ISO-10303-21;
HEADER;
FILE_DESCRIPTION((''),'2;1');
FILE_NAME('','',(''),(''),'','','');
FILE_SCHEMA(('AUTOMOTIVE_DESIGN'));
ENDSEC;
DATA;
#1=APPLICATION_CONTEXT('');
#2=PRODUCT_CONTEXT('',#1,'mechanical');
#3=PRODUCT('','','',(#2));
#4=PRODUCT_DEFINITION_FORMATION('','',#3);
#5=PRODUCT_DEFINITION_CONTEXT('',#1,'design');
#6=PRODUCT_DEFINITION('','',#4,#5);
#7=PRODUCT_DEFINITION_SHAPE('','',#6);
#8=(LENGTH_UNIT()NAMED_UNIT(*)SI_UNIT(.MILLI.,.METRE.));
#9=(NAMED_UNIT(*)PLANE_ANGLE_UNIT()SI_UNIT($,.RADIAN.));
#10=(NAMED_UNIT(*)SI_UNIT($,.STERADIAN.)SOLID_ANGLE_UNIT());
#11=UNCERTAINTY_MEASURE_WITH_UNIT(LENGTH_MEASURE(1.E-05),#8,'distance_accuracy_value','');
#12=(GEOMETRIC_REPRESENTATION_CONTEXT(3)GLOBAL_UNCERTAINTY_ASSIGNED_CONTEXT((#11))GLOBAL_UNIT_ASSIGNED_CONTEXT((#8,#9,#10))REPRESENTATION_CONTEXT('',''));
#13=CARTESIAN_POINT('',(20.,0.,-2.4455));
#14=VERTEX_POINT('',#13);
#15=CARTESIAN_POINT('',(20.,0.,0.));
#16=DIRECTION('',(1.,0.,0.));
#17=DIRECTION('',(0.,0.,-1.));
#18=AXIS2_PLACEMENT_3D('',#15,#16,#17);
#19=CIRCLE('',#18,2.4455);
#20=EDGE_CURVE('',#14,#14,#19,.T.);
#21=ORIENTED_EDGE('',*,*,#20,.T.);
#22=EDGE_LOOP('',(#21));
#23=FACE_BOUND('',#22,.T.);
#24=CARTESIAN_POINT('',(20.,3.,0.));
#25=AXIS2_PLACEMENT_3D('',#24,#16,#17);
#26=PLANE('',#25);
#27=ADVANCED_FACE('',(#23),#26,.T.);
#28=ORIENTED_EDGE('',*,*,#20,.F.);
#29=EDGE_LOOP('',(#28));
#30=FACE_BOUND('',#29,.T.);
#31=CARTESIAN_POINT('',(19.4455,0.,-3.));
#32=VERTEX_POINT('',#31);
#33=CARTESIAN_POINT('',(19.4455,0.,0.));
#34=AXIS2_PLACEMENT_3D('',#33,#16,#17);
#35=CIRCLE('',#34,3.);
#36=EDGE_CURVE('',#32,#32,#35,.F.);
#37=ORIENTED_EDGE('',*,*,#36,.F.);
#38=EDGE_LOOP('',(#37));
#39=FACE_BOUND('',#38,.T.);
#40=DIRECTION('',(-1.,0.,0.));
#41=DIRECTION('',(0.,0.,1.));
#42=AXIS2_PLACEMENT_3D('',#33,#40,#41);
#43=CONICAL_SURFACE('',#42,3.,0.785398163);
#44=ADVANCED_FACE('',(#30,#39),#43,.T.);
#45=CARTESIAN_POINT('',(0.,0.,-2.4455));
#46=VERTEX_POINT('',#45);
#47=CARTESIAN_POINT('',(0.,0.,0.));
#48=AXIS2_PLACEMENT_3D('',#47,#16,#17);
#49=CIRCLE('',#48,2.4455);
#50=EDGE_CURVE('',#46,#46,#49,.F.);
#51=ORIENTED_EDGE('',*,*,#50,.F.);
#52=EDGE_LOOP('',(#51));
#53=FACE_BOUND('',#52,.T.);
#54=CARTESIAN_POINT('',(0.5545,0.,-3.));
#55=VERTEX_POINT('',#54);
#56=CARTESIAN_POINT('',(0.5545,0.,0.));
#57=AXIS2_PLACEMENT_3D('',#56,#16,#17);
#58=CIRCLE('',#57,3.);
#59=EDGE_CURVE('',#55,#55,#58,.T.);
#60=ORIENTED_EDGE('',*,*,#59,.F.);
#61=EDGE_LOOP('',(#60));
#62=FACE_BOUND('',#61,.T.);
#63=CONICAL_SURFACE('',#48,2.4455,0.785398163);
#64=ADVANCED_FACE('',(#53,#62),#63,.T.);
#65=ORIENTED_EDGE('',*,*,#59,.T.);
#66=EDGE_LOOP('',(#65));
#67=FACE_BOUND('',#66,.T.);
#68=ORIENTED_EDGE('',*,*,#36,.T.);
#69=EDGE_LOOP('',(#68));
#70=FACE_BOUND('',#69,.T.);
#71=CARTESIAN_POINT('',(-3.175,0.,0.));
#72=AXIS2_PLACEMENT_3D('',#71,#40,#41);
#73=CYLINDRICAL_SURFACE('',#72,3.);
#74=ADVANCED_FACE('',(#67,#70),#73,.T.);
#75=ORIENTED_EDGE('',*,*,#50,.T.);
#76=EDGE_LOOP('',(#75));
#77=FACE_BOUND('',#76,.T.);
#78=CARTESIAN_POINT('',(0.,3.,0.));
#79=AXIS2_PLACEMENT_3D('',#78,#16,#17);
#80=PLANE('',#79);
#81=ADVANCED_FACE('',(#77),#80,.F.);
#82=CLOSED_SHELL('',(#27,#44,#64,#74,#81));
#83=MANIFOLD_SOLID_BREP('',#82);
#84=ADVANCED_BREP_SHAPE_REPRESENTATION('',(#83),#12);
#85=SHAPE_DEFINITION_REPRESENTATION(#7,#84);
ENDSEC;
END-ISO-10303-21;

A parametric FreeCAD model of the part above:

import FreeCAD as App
import Part
import Sketcher


def edges_at(feature, points):
    """Names of the edges that pass closest to the given points."""
    edges = feature.Shape.Edges
    near = lambda p: min(range(len(edges)), key=lambda i: edges[i].distToShape(Part.Vertex(*p))[0])
    return sorted({f"Edge{near(p) + 1}" for p in points})

doc = App.newDocument("Part")
body = doc.addObject("PartDesign::Body", "Body")

# Sketch on XY plane
sketch1 = body.newObject("Sketcher::SketchObject", "Sketch")
sketch1.AttachmentSupport = (doc.getObject("XY_Plane"), [""])
sketch1.MapMode = "FlatFace"
sketch1.addGeometry(Part.LineSegment(App.Vector(0, 3, 0), App.Vector(0, 0, 0)), False)
sketch1.addGeometry(Part.LineSegment(App.Vector(0, 0, 0), App.Vector(20, 0, 0)), False)
sketch1.addGeometry(Part.LineSegment(App.Vector(20, 0, 0), App.Vector(20, 3, 0)), False)
sketch1.addGeometry(Part.LineSegment(App.Vector(20, 3, 0), App.Vector(0, 3, 0)), False)
sketch1.addConstraint(Sketcher.Constraint("Coincident", 0, 2, 1, 1))
sketch1.addConstraint(Sketcher.Constraint("Coincident", 1, 2, 2, 1))
sketch1.addConstraint(Sketcher.Constraint("Coincident", 2, 2, 3, 1))
sketch1.addConstraint(Sketcher.Constraint("Coincident", 3, 2, 0, 1))
sketch1.addConstraint(Sketcher.Constraint("Vertical", 0))
sketch1.addConstraint(Sketcher.Constraint("Horizontal", 1))
sketch1.addConstraint(Sketcher.Constraint("Vertical", 2))
sketch1.addConstraint(Sketcher.Constraint("Horizontal", 3))
sketch1.addConstraint(Sketcher.Constraint("Coincident", 0, 2, -1, 1))
sketch1.addConstraint(Sketcher.Constraint("DistanceX", 1, 1, 1, 2, 20.0))
sketch1.addConstraint(Sketcher.Constraint("DistanceY", 0, 2, 0, 1, 3.0))
revolution = body.newObject("PartDesign::Revolution", "Revolution")
revolution.Profile = sketch1
revolution.ReferenceAxis = (sketch1, ["H_Axis"])
revolution.Angle = 360
doc.recompute()

chamfer = body.newObject("PartDesign::Chamfer", "Chamfer")
chamfer.Base = (revolution, edges_at(revolution, [(0, 0, -3), (20, 0, -3)]))
chamfer.Size = 0.5545

doc.recompute()
